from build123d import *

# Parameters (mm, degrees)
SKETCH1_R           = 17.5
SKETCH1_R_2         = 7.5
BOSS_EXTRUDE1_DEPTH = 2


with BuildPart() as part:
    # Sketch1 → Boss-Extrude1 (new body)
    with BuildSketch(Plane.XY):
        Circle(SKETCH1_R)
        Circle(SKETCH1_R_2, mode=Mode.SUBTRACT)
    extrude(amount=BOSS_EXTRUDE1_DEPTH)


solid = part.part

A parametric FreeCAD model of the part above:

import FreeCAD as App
import Part
import Sketcher

doc = App.newDocument("Part")
params = doc.addObject("Spreadsheet::Sheet", "Params")
for row, (alias, value) in enumerate([
    ("sketch1_diameter", "35 mm"),
    ("sketch1_diameter2", "15 mm"),
    ("pad1_length", "2 mm"),
], start=1):
    params.set(f"A{row}", alias)
    params.set(f"B{row}", "=" + value)
    params.setAlias(f"B{row}", alias)

body = doc.addObject("PartDesign::Body", "Body")

# Sketch on XY plane
sketch1 = doc.addObject("Sketcher::SketchObject", "Sketch")
body.addObject(sketch1)
sketch1.AttachmentSupport = (doc.XY_Plane, [""])
sketch1.MapMode = "FlatFace"
sketch1.addGeometry([
    Part.Circle(App.Vector(0, 0, 0), App.Vector(0, 0, 1), 18),
    Part.Circle(App.Vector(0, 0, 0), App.Vector(0, 0, 1), 8),
], False)
sketch1.addConstraint([
    Sketcher.Constraint("Coincident", 0, 3, -1, 1),
    Sketcher.Constraint("Coincident", 1, 3, -1, 1),
    Sketcher.Constraint("Diameter", 0, 35.0),
    Sketcher.Constraint("Diameter", 1, 15.0),
])
sketch1.setExpression("Constraints[2]", "Params.sketch1_diameter")
sketch1.setExpression("Constraints[3]", "Params.sketch1_diameter2")
pad1 = doc.addObject("PartDesign::Pad", "Pad")
body.addObject(pad1)
pad1.Profile = sketch1
pad1.setExpression("Length", "Params.pad1_length")

doc.recompute()
